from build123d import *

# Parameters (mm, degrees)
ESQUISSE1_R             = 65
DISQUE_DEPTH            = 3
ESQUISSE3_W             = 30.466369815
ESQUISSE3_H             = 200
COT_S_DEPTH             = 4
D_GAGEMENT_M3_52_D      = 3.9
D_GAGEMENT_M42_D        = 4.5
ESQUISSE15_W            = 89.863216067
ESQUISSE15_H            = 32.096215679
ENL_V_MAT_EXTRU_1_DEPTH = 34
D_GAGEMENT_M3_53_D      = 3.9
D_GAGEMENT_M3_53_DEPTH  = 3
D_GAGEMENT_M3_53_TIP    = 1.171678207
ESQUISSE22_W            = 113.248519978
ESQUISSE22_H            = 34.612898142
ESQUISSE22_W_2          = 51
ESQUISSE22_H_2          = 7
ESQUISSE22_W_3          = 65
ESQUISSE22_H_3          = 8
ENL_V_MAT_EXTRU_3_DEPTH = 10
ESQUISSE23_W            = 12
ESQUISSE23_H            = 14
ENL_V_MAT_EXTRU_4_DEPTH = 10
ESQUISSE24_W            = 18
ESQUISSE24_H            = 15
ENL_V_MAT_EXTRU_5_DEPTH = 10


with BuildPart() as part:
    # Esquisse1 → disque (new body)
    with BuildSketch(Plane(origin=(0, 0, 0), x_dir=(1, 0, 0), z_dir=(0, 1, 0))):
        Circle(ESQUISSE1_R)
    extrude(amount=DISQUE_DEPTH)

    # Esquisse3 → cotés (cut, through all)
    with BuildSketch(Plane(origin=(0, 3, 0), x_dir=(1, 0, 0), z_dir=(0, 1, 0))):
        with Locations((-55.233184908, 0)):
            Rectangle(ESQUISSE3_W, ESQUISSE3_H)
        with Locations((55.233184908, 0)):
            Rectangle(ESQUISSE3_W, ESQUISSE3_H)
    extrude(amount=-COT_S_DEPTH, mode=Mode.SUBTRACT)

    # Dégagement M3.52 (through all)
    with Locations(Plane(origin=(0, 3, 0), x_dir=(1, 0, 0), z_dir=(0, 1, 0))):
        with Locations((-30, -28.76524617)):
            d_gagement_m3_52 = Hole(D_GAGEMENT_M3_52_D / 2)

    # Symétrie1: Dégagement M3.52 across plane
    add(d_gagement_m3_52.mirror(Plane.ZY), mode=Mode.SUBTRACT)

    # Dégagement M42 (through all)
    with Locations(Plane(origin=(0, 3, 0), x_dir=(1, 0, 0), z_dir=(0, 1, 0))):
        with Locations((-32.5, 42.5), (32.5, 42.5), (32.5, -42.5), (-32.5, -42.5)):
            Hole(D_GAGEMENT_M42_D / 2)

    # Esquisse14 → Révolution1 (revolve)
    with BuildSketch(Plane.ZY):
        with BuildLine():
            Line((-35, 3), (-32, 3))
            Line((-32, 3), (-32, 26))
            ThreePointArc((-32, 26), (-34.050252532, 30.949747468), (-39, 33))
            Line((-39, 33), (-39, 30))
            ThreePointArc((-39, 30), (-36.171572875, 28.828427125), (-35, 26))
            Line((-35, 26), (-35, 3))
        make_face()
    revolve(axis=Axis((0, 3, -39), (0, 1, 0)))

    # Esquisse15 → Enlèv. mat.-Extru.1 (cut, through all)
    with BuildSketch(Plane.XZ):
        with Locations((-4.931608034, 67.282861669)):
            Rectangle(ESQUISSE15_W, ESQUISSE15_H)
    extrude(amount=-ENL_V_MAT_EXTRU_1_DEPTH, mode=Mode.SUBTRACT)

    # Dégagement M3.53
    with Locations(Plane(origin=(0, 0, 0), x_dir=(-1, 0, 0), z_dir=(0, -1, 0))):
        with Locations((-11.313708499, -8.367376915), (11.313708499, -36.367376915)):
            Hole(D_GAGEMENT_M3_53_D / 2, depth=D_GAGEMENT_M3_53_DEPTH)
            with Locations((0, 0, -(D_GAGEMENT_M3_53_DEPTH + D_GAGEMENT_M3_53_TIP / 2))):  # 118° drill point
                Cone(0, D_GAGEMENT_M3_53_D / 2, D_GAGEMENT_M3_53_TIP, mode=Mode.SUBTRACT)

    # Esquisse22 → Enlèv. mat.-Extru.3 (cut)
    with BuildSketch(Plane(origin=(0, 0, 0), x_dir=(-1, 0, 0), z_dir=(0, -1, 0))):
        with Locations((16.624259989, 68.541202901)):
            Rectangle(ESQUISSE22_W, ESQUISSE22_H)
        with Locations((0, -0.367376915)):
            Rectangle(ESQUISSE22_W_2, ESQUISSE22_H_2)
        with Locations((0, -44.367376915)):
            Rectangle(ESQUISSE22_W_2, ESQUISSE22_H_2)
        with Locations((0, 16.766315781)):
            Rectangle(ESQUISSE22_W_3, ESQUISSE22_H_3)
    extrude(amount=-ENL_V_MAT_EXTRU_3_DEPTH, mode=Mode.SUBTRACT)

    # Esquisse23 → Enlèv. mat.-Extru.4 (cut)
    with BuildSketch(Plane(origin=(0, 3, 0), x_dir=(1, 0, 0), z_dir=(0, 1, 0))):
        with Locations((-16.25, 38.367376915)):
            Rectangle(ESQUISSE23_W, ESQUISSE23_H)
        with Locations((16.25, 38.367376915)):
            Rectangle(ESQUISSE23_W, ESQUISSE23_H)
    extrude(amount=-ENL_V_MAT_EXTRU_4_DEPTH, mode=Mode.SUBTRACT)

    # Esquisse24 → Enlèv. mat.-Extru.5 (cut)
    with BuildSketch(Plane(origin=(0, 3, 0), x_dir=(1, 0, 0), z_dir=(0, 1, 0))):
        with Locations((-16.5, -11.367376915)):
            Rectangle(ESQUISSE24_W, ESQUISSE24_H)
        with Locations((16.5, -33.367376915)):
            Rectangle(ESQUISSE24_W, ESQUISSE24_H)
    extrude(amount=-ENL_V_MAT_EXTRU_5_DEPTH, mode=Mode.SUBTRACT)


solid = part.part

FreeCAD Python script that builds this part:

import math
import FreeCAD as App
import Part
import Sketcher
Q = App.Units.Quantity


def add_polygon(sketch, points):
    """Adds a closed chain of lines whose ends are joined by coincident constraints."""
    first, n = sketch.GeometryCount, len(points)
    for a, b in zip(points, points[1:] + points[:1]):
        sketch.addGeometry(Part.LineSegment(App.Vector(*a, 0), App.Vector(*b, 0)), False)
    for i in range(n):
        sketch.addConstraint(Sketcher.Constraint("Coincident", first + i, 2, first + (i + 1) % n, 1))

doc = App.newDocument("Part")
params = doc.addObject("Spreadsheet::Sheet", "Params")
for row, (alias, value) in enumerate([
    ("sketch1_diameter", "130 mm"),
    ("pad1_length", "3 mm"),
    ("sketch2_height", "200 mm"),
    ("sketch3_diameter", "3.9 mm"),
    ("hole_diameter", "3.9 mm"),
    ("sketch4_diameter", "4.5 mm"),
    ("hole2_diameter", "4.5 mm"),
    ("sketch5_radius", "7 mm"),
    ("sketch5_radius2", "4 mm"),
    ("sketch5_width", "23 mm"),
    ("revolution_angle", "360 deg"),
    ("sketch7_diameter", "3.9 mm"),
    ("hole3_diameter", "3.9 mm"),
    ("hole3_depth", "3 mm"),
    ("sketch8_width", "51 mm"),
    ("sketch8_width2", "65 mm"),
    ("sketch8_height", "7 mm"),
    ("sketch8_height2", "8 mm"),
    ("pocket3_length", "10 mm"),
    ("sketch9_width", "12 mm"),
    ("sketch9_height", "14 mm"),
    ("pocket4_length", "10 mm"),
    ("sketch10_width", "18 mm"),
    ("sketch10_height", "15 mm"),
    ("pocket5_length", "10 mm"),
], start=1):
    params.set(f"A{row}", alias)
    params.set(f"B{row}", "=" + value)
    params.setAlias(f"B{row}", alias)

body = doc.addObject("PartDesign::Body", "Body")

# Sketch on XZ plane
sketch1 = body.newObject("Sketcher::SketchObject", "Sketch")
sketch1.AttachmentSupport = (doc.getObject("XZ_Plane"), [""])
sketch1.MapMode = "FlatFace"
sketch1.addGeometry(Part.Circle(App.Vector(0, 0, 0), App.Vector(0, 0, 1), 65), False)
sketch1.addConstraint(Sketcher.Constraint("Coincident", 0, 3, -1, 1))
sketch1.addConstraint(Sketcher.Constraint("Diameter", 0, Q("130 mm")))
sketch1.setExpression("Constraints[1]", "Params.sketch1_diameter")
pad1 = body.newObject("PartDesign::Pad", "Pad")
pad1.Profile = sketch1
pad1.setExpression("Length", "Params.pad1_length")
pad1.Reversed = True

# Sketch on XZ plane
sketch2 = body.newObject("Sketcher::SketchObject", "Sketch001")
sketch2.AttachmentSupport = (doc.getObject("XZ_Plane"), [""])
sketch2.MapMode = "FlatFace"
sketch2.AttachmentOffset = App.Placement(App.Vector(0, 0, -3), App.Rotation())
add_polygon(sketch2, [(-70.46637, -100), (-70.46637, 100), (-40, 100), (-40, -100)])  # lines 0-3
add_polygon(sketch2, [(40, -100), (40, 100), (70.46637, 100), (70.46637, -100)])  # lines 4-7
sketch2.addConstraint(Sketcher.Constraint("Vertical", 0))
sketch2.addConstraint(Sketcher.Constraint("Horizontal", 1))
sketch2.addConstraint(Sketcher.Constraint("Vertical", 2))
sketch2.addConstraint(Sketcher.Constraint("Horizontal", 3))
sketch2.addConstraint(Sketcher.Constraint("Vertical", 4))
sketch2.addConstraint(Sketcher.Constraint("Horizontal", 5))
sketch2.addConstraint(Sketcher.Constraint("Vertical", 6))
sketch2.addConstraint(Sketcher.Constraint("Horizontal", 7))
sketch2.addConstraint(Sketcher.Constraint("Symmetric", 2, 2, 4, 2, -1, 1))
sketch2.addConstraint(Sketcher.Constraint("Symmetric", 0, 2, 6, 2, -1, 1))
sketch2.addConstraint(Sketcher.Constraint("Horizontal", 1, 2, 4, 2))
sketch2.addConstraint(Sketcher.Constraint("DistanceY", 0, 1, 0, 2, Q("200 mm")))
sketch2.addConstraint(Sketcher.Constraint("DistanceX", 1, 2, -1, 1, Q("40 mm")))
sketch2.addConstraint(Sketcher.Constraint("DistanceX", 1, 1, 1, 2, Q("30.46637 mm")))
sketch2.setExpression("Constraints[19]", "Params.sketch2_height")
pocket1 = body.newObject("PartDesign::Pocket", "Pocket")
pocket1.Profile = sketch2
pocket1.Type = "ThroughAll"
pocket1.Reversed = True

# Sketch on XZ plane
sketch3 = body.newObject("Sketcher::SketchObject", "Sketch002")
sketch3.AttachmentSupport = (doc.getObject("XZ_Plane"), [""])
sketch3.MapMode = "FlatFace"
sketch3.AttachmentOffset = App.Placement(App.Vector(0, 0, -3), App.Rotation())
sketch3.addGeometry(Part.Circle(App.Vector(-30, 28.765246, 0), App.Vector(0, 0, 1), 1.95), False)
sketch3.addConstraint(Sketcher.Constraint("Diameter", 0, Q("3.9 mm")))
sketch3.addConstraint(Sketcher.Constraint("DistanceX", 0, 3, -1, 1, Q("30 mm")))
sketch3.addConstraint(Sketcher.Constraint("DistanceY", -1, 1, 0, 3, Q("28.765246 mm")))
sketch3.setExpression("Constraints[0]", "Params.sketch3_diameter")
doc.recompute()
hole = body.newObject("PartDesign::Hole", "Hole")
hole.Profile = sketch3
hole.ThreadType = "None"
hole.setExpression("Diameter", "Params.hole_diameter")
hole.DepthType = "ThroughAll"
hole.Reversed = True
doc.recompute()

mirrored = body.newObject("PartDesign::Mirrored", "Mirrored")
mirrored.Originals = [hole]
mirrored.MirrorPlane = (doc.getObject("YZ_Plane"), [""])
body.Tip = mirrored

# Sketch on XZ plane
sketch4 = body.newObject("Sketcher::SketchObject", "Sketch003")
sketch4.AttachmentSupport = (doc.getObject("XZ_Plane"), [""])
sketch4.MapMode = "FlatFace"
sketch4.AttachmentOffset = App.Placement(App.Vector(0, 0, -3), App.Rotation())
sketch4.addGeometry(Part.Circle(App.Vector(-32.5, -42.5, 0), App.Vector(0, 0, 1), 2.25), False)
sketch4.addGeometry(Part.Circle(App.Vector(32.5, -42.5, 0), App.Vector(0, 0, 1), 2.25), False)
sketch4.addGeometry(Part.Circle(App.Vector(32.5, 42.5, 0), App.Vector(0, 0, 1), 2.25), False)
sketch4.addGeometry(Part.Circle(App.Vector(-32.5, 42.5, 0), App.Vector(0, 0, 1), 2.25), False)
sketch4.addConstraint(Sketcher.Constraint("Equal", 0, 1))
sketch4.addConstraint(Sketcher.Constraint("Equal", 1, 2))
sketch4.addConstraint(Sketcher.Constraint("Equal", 2, 3))
sketch4.addConstraint(Sketcher.Constraint("Symmetric", 0, 3, 2, 3, -1, 1))
sketch4.addConstraint(Sketcher.Constraint("Symmetric", 1, 3, 3, 3, -1, 1))
sketch4.addConstraint(Sketcher.Constraint("Symmetric", 0, 3, 1, 3, -2))
sketch4.addConstraint(Sketcher.Constraint("Diameter", 0, Q("4.5 mm")))
sketch4.addConstraint(Sketcher.Constraint("DistanceX", 0, 3, 1, 3, Q("65 mm")))
sketch4.addConstraint(Sketcher.Constraint("DistanceY", 1, 3, 2, 3, Q("85 mm")))
sketch4.setExpression("Constraints[6]", "Params.sketch4_diameter")
doc.recompute()
hole2 = body.newObject("PartDesign::Hole", "Hole001")
hole2.Profile = sketch4
hole2.ThreadType = "None"
hole2.setExpression("Diameter", "Params.hole2_diameter")
hole2.DepthType = "ThroughAll"
hole2.Reversed = True

# Sketch on YZ plane
sketch5 = body.newObject("Sketcher::SketchObject", "Sketch004")
sketch5.AttachmentSupport = (doc.getObject("YZ_Plane"), [""])
sketch5.MapMode = "FlatFace"
sketch5.addGeometry(Part.LineSegment(App.Vector(3, -35, 0), App.Vector(3, -32, 0)), False)
sketch5.addGeometry(Part.LineSegment(App.Vector(3, -32, 0), App.Vector(26, -32, 0)), False)
sketch5.addGeometry(Part.ArcOfCircle(Part.Circle(App.Vector(26, -39, 0), App.Vector(0, 0, 1), 7), math.radians(0), math.radians(90)), False)
sketch5.addGeometry(Part.LineSegment(App.Vector(33, -39, 0), App.Vector(30, -39, 0)), False)
sketch5.addGeometry(Part.ArcOfCircle(Part.Circle(App.Vector(26, -39, 0), App.Vector(0, 0, 1), 4), math.radians(0), math.radians(90)), False)
sketch5.addGeometry(Part.LineSegment(App.Vector(26, -35, 0), App.Vector(3, -35, 0)), False)
sketch5.addGeometry(Part.LineSegment(App.Vector(3, -39, 0), App.Vector(33, -39, 0)), True)  # axis
sketch5.addConstraint(Sketcher.Constraint("Coincident", 0, 2, 1, 1))
sketch5.addConstraint(Sketcher.Constraint("Tangent", 1, 2, 2, 2))
sketch5.addConstraint(Sketcher.Constraint("Coincident", 2, 1, 3, 1))
sketch5.addConstraint(Sketcher.Constraint("Coincident", 3, 2, 4, 1))
sketch5.addConstraint(Sketcher.Constraint("Tangent", 4, 2, 5, 1))
sketch5.addConstraint(Sketcher.Constraint("Coincident", 5, 2, 0, 1))
sketch5.addConstraint(Sketcher.Constraint("Vertical", 0))
sketch5.addConstraint(Sketcher.Constraint("Horizontal", 1))
sketch5.addConstraint(Sketcher.Constraint("Horizontal", 3))
sketch5.addConstraint(Sketcher.Constraint("Horizontal", 5))
sketch5.addConstraint(Sketcher.Constraint("Horizontal", 6))
sketch5.addConstraint(Sketcher.Constraint("Coincident", 4, 3, 2, 3))
sketch5.addConstraint(Sketcher.Constraint("Coincident", 6, 2, 2, 1))
sketch5.addConstraint(Sketcher.Constraint("Horizontal", 4, 3, 2, 1))
sketch5.addConstraint(Sketcher.Constraint("Vertical", 5, 2, 6, 1))
sketch5.addConstraint(Sketcher.Constraint("Radius", 2, Q("7 mm")))
sketch5.addConstraint(Sketcher.Constraint("Radius", 4, Q("4 mm")))
sketch5.addConstraint(Sketcher.Constraint("DistanceX", 1, 1, 1, 2, Q("23 mm")))
sketch5.addConstraint(Sketcher.Constraint("DistanceX", -1, 1, 2, 3, Q("26 mm")))
sketch5.addConstraint(Sketcher.Constraint("DistanceY", 2, 3, -1, 1, Q("39 mm")))
sketch5.setExpression("Constraints[15]", "Params.sketch5_radius")
sketch5.setExpression("Constraints[16]", "Params.sketch5_radius2")
sketch5.setExpression("Constraints[17]", "Params.sketch5_width")
revolution = body.newObject("PartDesign::Revolution", "Revolution")
revolution.Profile = sketch5
revolution.ReferenceAxis = (sketch5, ["Axis0"])
revolution.setExpression("Angle", "Params.revolution_angle")

# Sketch on XZ plane
sketch6 = body.newObject("Sketcher::SketchObject", "Sketch005")
sketch6.AttachmentSupport = (doc.getObject("XZ_Plane"), [""])
sketch6.MapMode = "FlatFace"
add_polygon(sketch6, [(-49.863216, 83.33097), (-49.863216, 51.234754), (40, 51.234754), (40, 83.33097)])  # lines 0-3
sketch6.addConstraint(Sketcher.Constraint("Vertical", 0))
sketch6.addConstraint(Sketcher.Constraint("Horizontal", 1))
sketch6.addConstraint(Sketcher.Constraint("Vertical", 2))
sketch6.addConstraint(Sketcher.Constraint("Horizontal", 3))
sketch6.addConstraint(Sketcher.Constraint("DistanceX", -1, 1, 1, 2, Q("40 mm")))
sketch6.addConstraint(Sketcher.Constraint("DistanceX", 1, 1, 1, 2, Q("89.863216 mm")))
sketch6.addConstraint(Sketcher.Constraint("DistanceY", 0, 2, 0, 1, Q("32.096216 mm")))
sketch6.addConstraint(Sketcher.Constraint("DistanceY", -1, 1, 2, 2, Q("83.33097 mm")))
pocket2 = body.newObject("PartDesign::Pocket", "Pocket001")
pocket2.Profile = sketch6
pocket2.Type = "ThroughAll"

# Sketch on XZ plane
sketch7 = body.newObject("Sketcher::SketchObject", "Sketch006")
sketch7.AttachmentSupport = (doc.getObject("XZ_Plane"), [""])
sketch7.MapMode = "FlatFace"
sketch7.addGeometry(Part.Circle(App.Vector(11.313708, 8.367377, 0), App.Vector(0, 0, 1), 1.95), False)
sketch7.addGeometry(Part.Circle(App.Vector(-11.313708, 36.367377, 0), App.Vector(0, 0, 1), 1.95), False)
sketch7.addConstraint(Sketcher.Constraint("Equal", 0, 1))
sketch7.addConstraint(Sketcher.Constraint("Diameter", 0, Q("3.9 mm")))
sketch7.addConstraint(Sketcher.Constraint("DistanceY", 0, 3, 1, 3, Q("28 mm")))
sketch7.addConstraint(Sketcher.Constraint("DistanceX", -1, 1, 0, 3, Q("11.313708 mm")))
sketch7.addConstraint(Sketcher.Constraint("DistanceX", 1, 3, -1, 1, Q("11.313708 mm")))
sketch7.addConstraint(Sketcher.Constraint("DistanceY", -1, 1, 0, 3, Q("8.367377 mm")))
sketch7.setExpression("Constraints[1]", "Params.sketch7_diameter")
doc.recompute()
hole3 = body.newObject("PartDesign::Hole", "Hole002")
hole3.Profile = sketch7
hole3.ThreadType = "None"
hole3.setExpression("Diameter", "Params.hole3_diameter")
hole3.DepthType = "Dimension"
hole3.setExpression("Depth", "Params.hole3_depth")
hole3.DrillPoint = "Angled"
hole3.DrillPointAngle = 118

# Sketch on XZ plane
sketch8 = body.newObject("Sketcher::SketchObject", "Sketch007")
sketch8.AttachmentSupport = (doc.getObject("XZ_Plane"), [""])
sketch8.MapMode = "FlatFace"
add_polygon(sketch8, [(40, -85.847652), (40, -51.234754), (-73.24852, -51.234754), (-73.24852, -85.847652)])  # lines 0-3
add_polygon(sketch8, [(25.5, -3.132623), (25.5, 3.867377), (-25.5, 3.867377), (-25.5, -3.132623)])  # lines 4-7
add_polygon(sketch8, [(25.5, 40.867377), (25.5, 47.867377), (-25.5, 47.867377), (-25.5, 40.867377)])  # lines 8-11
add_polygon(sketch8, [(32.5, -20.766316), (32.5, -12.766316), (-32.5, -12.766316), (-32.5, -20.766316)])  # lines 12-15
sketch8.addConstraint(Sketcher.Constraint("Vertical", 0))
sketch8.addConstraint(Sketcher.Constraint("Horizontal", 1))
sketch8.addConstraint(Sketcher.Constraint("Vertical", 2))
sketch8.addConstraint(Sketcher.Constraint("Horizontal", 3))
sketch8.addConstraint(Sketcher.Constraint("Vertical", 4))
sketch8.addConstraint(Sketcher.Constraint("Horizontal", 5))
sketch8.addConstraint(Sketcher.Constraint("Vertical", 6))
sketch8.addConstraint(Sketcher.Constraint("Horizontal", 7))
sketch8.addConstraint(Sketcher.Constraint("Vertical", 8))
sketch8.addConstraint(Sketcher.Constraint("Horizontal", 9))
sketch8.addConstraint(Sketcher.Constraint("Vertical", 10))
sketch8.addConstraint(Sketcher.Constraint("Horizontal", 11))
sketch8.addConstraint(Sketcher.Constraint("Vertical", 12))
sketch8.addConstraint(Sketcher.Constraint("Horizontal", 13))
sketch8.addConstraint(Sketcher.Constraint("Vertical", 14))
sketch8.addConstraint(Sketcher.Constraint("Horizontal", 15))
sketch8.addConstraint(Sketcher.Constraint("Vertical", 7, 2, 8, 2))
sketch8.addConstraint(Sketcher.Constraint("Vertical", 6, 2, 9, 2))
sketch8.addConstraint(Sketcher.Constraint("Equal", 6, 8))
sketch8.addConstraint(Sketcher.Constraint("DistanceX", 5, 2, 5, 1, Q("51 mm")))
sketch8.addConstraint(Sketcher.Constraint("DistanceX", 13, 2, 13, 1, Q("65 mm")))
sketch8.addConstraint(Sketcher.Constraint("DistanceY", 4, 1, 4, 2, Q("7 mm")))
sketch8.addConstraint(Sketcher.Constraint("DistanceY", 12, 1, 12, 2, Q("8 mm")))
sketch8.addConstraint(Sketcher.Constraint("DistanceX", -1, 1, 0, 2, Q("40 mm")))
sketch8.addConstraint(Sketcher.Constraint("DistanceY", 4, 2, 8, 2, Q("44 mm")))
sketch8.addConstraint(Sketcher.Constraint("DistanceX", 7, 2, 12, 2, Q("7 mm")))
sketch8.addConstraint(Sketcher.Constraint("DistanceX", -1, 1, 4, 2, Q("25.5 mm")))
sketch8.addConstraint(Sketcher.Constraint("DistanceY", 0, 1, 0, 2, Q("34.612898 mm")))
sketch8.addConstraint(Sketcher.Constraint("DistanceX", 1, 2, 1, 1, Q("113.24852 mm")))
sketch8.addConstraint(Sketcher.Constraint("DistanceY", 2, 2, -1, 1, Q("85.847652 mm")))
sketch8.addConstraint(Sketcher.Constraint("DistanceY", 0, 2, 4, 2, Q("55.102131 mm")))
sketch8.addConstraint(Sketcher.Constraint("DistanceY", 0, 2, 12, 2, Q("38.468438 mm")))
sketch8.setExpression("Constraints[35]", "Params.sketch8_width")
sketch8.setExpression("Constraints[36]", "Params.sketch8_width2")
sketch8.setExpression("Constraints[37]", "Params.sketch8_height")
sketch8.setExpression("Constraints[38]", "Params.sketch8_height2")
pocket3 = body.newObject("PartDesign::Pocket", "Pocket002")
pocket3.Profile = sketch8
pocket3.setExpression("Length", "Params.pocket3_length")

# Sketch on XZ plane
sketch9 = body.newObject("Sketcher::SketchObject", "Sketch008")
sketch9.AttachmentSupport = (doc.getObject("XZ_Plane"), [""])
sketch9.MapMode = "FlatFace"
sketch9.AttachmentOffset = App.Placement(App.Vector(0, 0, -3), App.Rotation())
add_polygon(sketch9, [(-22.25, -45.367377), (-22.25, -31.367377), (-10.25, -31.367377), (-10.25, -45.367377)])  # lines 0-3
add_polygon(sketch9, [(10.25, -45.367377), (10.25, -31.367377), (22.25, -31.367377), (22.25, -45.367377)])  # lines 4-7
sketch9.addConstraint(Sketcher.Constraint("Vertical", 0))
sketch9.addConstraint(Sketcher.Constraint("Horizontal", 1))
sketch9.addConstraint(Sketcher.Constraint("Vertical", 2))
sketch9.addConstraint(Sketcher.Constraint("Horizontal", 3))
sketch9.addConstraint(Sketcher.Constraint("Vertical", 4))
sketch9.addConstraint(Sketcher.Constraint("Horizontal", 5))
sketch9.addConstraint(Sketcher.Constraint("Vertical", 6))
sketch9.addConstraint(Sketcher.Constraint("Horizontal", 7))
sketch9.addConstraint(Sketcher.Constraint("Symmetric", 1, 2, 4, 2, -2))
sketch9.addConstraint(Sketcher.Constraint("Symmetric", 3, 2, 6, 2, -2))
sketch9.addConstraint(Sketcher.Constraint("DistanceX", 1, 1, 1, 2, Q("12 mm")))
sketch9.addConstraint(Sketcher.Constraint("DistanceY", 0, 1, 0, 2, Q("14 mm")))
sketch9.addConstraint(Sketcher.Constraint("DistanceX", 1, 2, 4, 2, Q("20.5 mm")))
sketch9.addConstraint(Sketcher.Constraint("DistanceY", 0, 2, -1, 1, Q("31.367377 mm")))
sketch9.setExpression("Constraints[18]", "Params.sketch9_width")
sketch9.setExpression("Constraints[19]", "Params.sketch9_height")
pocket4 = body.newObject("PartDesign::Pocket", "Pocket003")
pocket4.Profile = sketch9
pocket4.setExpression("Length", "Params.pocket4_length")
pocket4.Reversed = True

# Sketch on XZ plane
sketch10 = body.newObject("Sketcher::SketchObject", "Sketch009")
sketch10.AttachmentSupport = (doc.getObject("XZ_Plane"), [""])
sketch10.MapMode = "FlatFace"
sketch10.AttachmentOffset = App.Placement(App.Vector(0, 0, -3), App.Rotation())
add_polygon(sketch10, [(-25.5, 3.867377), (-25.5, 18.867377), (-7.5, 18.867377), (-7.5, 3.867377)])  # lines 0-3
add_polygon(sketch10, [(7.5, 25.867377), (7.5, 40.867377), (25.5, 40.867377), (25.5, 25.867377)])  # lines 4-7
sketch10.addConstraint(Sketcher.Constraint("Vertical", 0))
sketch10.addConstraint(Sketcher.Constraint("Horizontal", 1))
sketch10.addConstraint(Sketcher.Constraint("Vertical", 2))
sketch10.addConstraint(Sketcher.Constraint("Horizontal", 3))
sketch10.addConstraint(Sketcher.Constraint("Vertical", 4))
sketch10.addConstraint(Sketcher.Constraint("Horizontal", 5))
sketch10.addConstraint(Sketcher.Constraint("Vertical", 6))
sketch10.addConstraint(Sketcher.Constraint("Horizontal", 7))
sketch10.addConstraint(Sketcher.Constraint("Equal", 3, 5))
sketch10.addConstraint(Sketcher.Constraint("Equal", 2, 4))
sketch10.addConstraint(Sketcher.Constraint("DistanceX", 1, 1, 1, 2, Q("18 mm")))
sketch10.addConstraint(Sketcher.Constraint("DistanceY", 0, 1, 0, 2, Q("15 mm")))
sketch10.addConstraint(Sketcher.Constraint("DistanceX", 1, 2, 4, 2, Q("15 mm")))
sketch10.addConstraint(Sketcher.Constraint("DistanceY", 1, 2, 4, 2, Q("22 mm")))
sketch10.addConstraint(Sketcher.Constraint("DistanceX", 0, 2, -1, 1, Q("25.5 mm")))
sketch10.addConstraint(Sketcher.Constraint("DistanceY", -1, 1, 0, 2, Q("18.867377 mm")))
sketch10.setExpression("Constraints[18]", "Params.sketch10_width")
sketch10.setExpression("Constraints[19]", "Params.sketch10_height")
pocket5 = body.newObject("PartDesign::Pocket", "Pocket004")
pocket5.Profile = sketch10
pocket5.setExpression("Length", "Params.pocket5_length")
pocket5.Reversed = True

doc.recompute()
